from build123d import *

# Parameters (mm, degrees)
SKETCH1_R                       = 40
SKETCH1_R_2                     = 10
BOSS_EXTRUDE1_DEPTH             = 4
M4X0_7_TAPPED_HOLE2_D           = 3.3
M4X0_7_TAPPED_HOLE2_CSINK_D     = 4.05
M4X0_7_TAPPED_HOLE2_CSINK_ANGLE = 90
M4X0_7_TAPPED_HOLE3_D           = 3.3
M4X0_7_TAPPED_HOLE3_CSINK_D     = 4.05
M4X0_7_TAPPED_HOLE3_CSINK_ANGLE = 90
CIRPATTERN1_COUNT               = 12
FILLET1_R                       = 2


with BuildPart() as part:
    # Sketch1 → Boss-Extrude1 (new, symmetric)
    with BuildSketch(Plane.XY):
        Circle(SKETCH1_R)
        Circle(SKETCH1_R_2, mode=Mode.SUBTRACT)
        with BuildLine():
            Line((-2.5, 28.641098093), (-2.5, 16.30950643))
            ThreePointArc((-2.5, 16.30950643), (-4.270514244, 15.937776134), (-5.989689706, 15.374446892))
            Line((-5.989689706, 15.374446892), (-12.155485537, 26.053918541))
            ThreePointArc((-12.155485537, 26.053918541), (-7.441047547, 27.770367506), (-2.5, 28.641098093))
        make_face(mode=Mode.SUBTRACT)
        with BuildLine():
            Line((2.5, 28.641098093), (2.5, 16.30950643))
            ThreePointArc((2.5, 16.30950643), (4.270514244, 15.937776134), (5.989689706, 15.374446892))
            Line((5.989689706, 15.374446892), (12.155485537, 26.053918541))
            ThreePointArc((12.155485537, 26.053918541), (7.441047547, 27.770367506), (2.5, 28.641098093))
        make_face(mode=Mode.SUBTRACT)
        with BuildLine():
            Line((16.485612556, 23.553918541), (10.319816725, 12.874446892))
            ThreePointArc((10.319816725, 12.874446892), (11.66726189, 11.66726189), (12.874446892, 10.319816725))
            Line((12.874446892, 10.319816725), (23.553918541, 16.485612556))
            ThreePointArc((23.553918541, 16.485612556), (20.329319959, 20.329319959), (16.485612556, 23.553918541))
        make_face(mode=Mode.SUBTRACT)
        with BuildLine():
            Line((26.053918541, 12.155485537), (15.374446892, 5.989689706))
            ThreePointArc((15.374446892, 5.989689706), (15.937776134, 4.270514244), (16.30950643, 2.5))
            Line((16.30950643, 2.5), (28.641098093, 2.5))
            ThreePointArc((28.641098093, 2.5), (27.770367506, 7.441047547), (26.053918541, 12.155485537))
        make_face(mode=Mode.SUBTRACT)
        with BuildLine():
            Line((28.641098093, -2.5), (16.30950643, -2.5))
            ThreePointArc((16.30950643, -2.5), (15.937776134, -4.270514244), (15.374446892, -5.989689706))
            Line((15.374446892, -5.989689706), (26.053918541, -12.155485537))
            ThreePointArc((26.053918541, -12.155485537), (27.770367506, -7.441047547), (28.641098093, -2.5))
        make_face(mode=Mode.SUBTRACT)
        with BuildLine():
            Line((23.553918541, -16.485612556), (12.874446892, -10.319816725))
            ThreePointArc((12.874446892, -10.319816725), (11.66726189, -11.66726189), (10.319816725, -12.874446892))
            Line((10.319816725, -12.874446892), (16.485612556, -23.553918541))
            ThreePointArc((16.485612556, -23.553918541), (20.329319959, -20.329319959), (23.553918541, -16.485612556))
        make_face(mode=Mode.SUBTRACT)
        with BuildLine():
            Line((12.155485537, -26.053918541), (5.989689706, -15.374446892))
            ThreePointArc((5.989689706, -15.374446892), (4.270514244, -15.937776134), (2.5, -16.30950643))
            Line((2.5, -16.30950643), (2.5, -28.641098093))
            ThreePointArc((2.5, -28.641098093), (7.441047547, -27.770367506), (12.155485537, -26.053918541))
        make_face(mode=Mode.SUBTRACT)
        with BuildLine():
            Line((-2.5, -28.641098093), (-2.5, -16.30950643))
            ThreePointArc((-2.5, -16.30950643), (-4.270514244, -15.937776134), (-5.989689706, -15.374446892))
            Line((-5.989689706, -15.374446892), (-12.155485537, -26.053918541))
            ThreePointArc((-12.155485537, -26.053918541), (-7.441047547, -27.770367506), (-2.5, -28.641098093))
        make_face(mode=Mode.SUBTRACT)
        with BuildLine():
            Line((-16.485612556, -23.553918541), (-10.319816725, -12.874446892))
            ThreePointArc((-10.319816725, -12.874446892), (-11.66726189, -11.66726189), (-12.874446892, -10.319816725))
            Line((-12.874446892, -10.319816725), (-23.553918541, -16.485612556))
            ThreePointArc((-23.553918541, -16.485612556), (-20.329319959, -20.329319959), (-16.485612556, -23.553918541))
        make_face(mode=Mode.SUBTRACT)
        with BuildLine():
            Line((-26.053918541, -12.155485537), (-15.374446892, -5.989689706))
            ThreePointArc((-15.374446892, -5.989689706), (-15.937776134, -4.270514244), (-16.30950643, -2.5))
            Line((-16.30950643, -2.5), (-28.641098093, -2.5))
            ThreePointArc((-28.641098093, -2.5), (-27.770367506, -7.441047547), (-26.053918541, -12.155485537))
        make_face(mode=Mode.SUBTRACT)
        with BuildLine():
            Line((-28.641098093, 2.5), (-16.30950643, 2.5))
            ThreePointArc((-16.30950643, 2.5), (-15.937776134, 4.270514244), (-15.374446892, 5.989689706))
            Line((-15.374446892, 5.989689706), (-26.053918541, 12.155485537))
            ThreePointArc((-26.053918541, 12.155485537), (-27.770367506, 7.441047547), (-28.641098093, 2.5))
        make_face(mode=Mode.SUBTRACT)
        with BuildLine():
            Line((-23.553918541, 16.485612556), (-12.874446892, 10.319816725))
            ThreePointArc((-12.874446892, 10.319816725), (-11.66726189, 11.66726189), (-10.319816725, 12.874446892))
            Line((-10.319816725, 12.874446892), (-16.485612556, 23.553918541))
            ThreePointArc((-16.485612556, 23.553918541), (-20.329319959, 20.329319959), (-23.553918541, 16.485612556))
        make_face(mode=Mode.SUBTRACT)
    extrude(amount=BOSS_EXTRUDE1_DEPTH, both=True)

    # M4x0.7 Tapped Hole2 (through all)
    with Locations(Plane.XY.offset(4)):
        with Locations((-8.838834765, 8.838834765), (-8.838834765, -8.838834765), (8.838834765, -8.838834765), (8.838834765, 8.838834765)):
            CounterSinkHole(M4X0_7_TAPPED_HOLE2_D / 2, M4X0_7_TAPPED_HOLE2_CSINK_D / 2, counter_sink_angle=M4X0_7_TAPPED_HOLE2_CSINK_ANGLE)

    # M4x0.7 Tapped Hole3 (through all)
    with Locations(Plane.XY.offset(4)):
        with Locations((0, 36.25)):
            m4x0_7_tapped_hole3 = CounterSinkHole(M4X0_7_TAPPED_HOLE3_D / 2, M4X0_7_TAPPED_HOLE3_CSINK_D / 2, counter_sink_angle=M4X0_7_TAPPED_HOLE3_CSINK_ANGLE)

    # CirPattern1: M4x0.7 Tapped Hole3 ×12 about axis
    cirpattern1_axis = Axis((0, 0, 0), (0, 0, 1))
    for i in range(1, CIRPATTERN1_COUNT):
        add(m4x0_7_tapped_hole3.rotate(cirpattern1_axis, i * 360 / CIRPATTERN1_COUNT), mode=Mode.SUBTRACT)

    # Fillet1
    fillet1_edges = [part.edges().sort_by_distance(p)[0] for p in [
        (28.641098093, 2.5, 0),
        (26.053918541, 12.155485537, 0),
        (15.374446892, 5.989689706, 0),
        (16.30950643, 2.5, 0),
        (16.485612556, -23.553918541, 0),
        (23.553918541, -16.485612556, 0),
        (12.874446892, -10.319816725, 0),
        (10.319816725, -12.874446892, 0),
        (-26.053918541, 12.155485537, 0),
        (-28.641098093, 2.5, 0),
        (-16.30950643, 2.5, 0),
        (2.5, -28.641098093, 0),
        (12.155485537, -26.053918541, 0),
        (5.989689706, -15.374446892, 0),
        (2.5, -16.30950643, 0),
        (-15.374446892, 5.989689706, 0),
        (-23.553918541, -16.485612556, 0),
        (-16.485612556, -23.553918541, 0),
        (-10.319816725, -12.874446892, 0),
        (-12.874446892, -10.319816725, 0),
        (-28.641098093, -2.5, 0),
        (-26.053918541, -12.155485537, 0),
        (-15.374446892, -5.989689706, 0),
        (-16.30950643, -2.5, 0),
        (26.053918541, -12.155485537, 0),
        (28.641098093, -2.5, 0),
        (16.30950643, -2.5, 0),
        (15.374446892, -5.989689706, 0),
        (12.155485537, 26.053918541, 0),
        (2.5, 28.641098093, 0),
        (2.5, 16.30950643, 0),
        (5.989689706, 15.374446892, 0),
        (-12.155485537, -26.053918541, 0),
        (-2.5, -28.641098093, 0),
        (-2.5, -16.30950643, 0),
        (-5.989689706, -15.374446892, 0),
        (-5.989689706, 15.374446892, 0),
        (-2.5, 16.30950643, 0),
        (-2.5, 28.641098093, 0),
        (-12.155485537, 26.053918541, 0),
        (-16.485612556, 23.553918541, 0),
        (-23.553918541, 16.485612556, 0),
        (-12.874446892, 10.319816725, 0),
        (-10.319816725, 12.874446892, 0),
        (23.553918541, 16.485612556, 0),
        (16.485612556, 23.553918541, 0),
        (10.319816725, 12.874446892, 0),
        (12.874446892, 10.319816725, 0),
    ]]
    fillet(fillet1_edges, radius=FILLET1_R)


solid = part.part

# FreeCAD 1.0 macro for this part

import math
import FreeCAD as App
import Part
import Sketcher
from FreeCAD import Vector
Q = App.Units.Quantity


def edges_at(feature, points):
    """Names of the edges that pass closest to the given points."""
    edges = feature.Shape.Edges
    near = lambda p: min(range(len(edges)), key=lambda i: edges[i].distToShape(Part.Vertex(*p))[0])
    return sorted({f"Edge{near(p) + 1}" for p in points})

doc = App.newDocument("Part")
params = doc.addObject("Spreadsheet::Sheet", "Params")
for row, (alias, value) in enumerate([
    ("sketch1_diameter", "80 mm"),
    ("sketch1_diameter2", "20 mm"),
    ("sketch1_radius", "16.5 mm"),
    ("sketch1_radius2", "28.75 mm"),
    ("pad1_length", "8 mm"),
    ("sketch2_diameter", "3.3 mm"),
    ("hole_diameter", "3.3 mm"),
    ("hole_csink_diameter", "4.05 mm"),
    ("sketch3_diameter", "3.3 mm"),
    ("hole2_diameter", "3.3 mm"),
    ("hole2_csink_diameter", "4.05 mm"),
    ("fillet_radius", "2 mm"),
], start=1):
    params.set(f"A{row}", alias)
    params.set(f"B{row}", "=" + value)
    params.setAlias(f"B{row}", alias)

body = doc.addObject("PartDesign::Body", "Body")

# Sketch on XY plane
sketch1 = doc.addObject("Sketcher::SketchObject", "Sketch")
body.addObject(sketch1)
sketch1.AttachmentSupport = (doc.XY_Plane, [""])
sketch1.MapMode = "FlatFace"
sketch1.addGeometry([
    Part.Circle(Vector(0, 0, 0), Vector(0, 0, 1), 40),  # 0
    Part.LineSegment(Vector(-10.319817, -12.874447, 0), Vector(-16.485613, -23.553919, 0)),  # 1
    Part.ArcOfCircle(Part.Circle(Vector(0, 0, 0), Vector(0, 0, 1), 28.75), math.radians(-145.011458), math.radians(-124.988542)),  # 2
    Part.LineSegment(Vector(-23.553919, -16.485613, 0), Vector(-12.874447, -10.319817, 0)),  # 3
    Part.ArcOfCircle(Part.Circle(Vector(0, 0, 0), Vector(0, 0, 1), 16.5), math.radians(-141.285258), math.radians(-128.714742)),  # 4
    Part.LineSegment(Vector(-2.5, -16.309506, 0), Vector(-2.5, -28.641098, 0)),  # 5
    Part.ArcOfCircle(Part.Circle(Vector(0, 0, 0), Vector(0, 0, 1), 28.75), math.radians(-115.011458), math.radians(-94.988542)),  # 6
    Part.LineSegment(Vector(-12.155486, -26.053919, 0), Vector(-5.98969, -15.374447, 0)),  # 7
    Part.ArcOfCircle(Part.Circle(Vector(0, 0, 0), Vector(0, 0, 1), 16.5), math.radians(-111.285258), math.radians(-98.714742)),  # 8
    Part.LineSegment(Vector(-15.374447, -5.98969, 0), Vector(-26.053919, -12.155486, 0)),  # 9
    Part.ArcOfCircle(Part.Circle(Vector(0, 0, 0), Vector(0, 0, 1), 28.75), math.radians(-175.011458), math.radians(-154.988542)),  # 10
    Part.LineSegment(Vector(-28.641098, -2.5, 0), Vector(-16.309506, -2.5, 0)),  # 11
    Part.ArcOfCircle(Part.Circle(Vector(0, 0, 0), Vector(0, 0, 1), 16.5), math.radians(-171.285258), math.radians(-158.714742)),  # 12
    Part.LineSegment(Vector(5.98969, -15.374447, 0), Vector(12.155486, -26.053919, 0)),  # 13
    Part.ArcOfCircle(Part.Circle(Vector(0, 0, 0), Vector(0, 0, 1), 28.75), math.radians(-85.011458), math.radians(-64.988542)),  # 14
    Part.LineSegment(Vector(2.5, -28.641098, 0), Vector(2.5, -16.309506, 0)),  # 15
    Part.ArcOfCircle(Part.Circle(Vector(0, 0, 0), Vector(0, 0, 1), 16.5), math.radians(-81.285258), math.radians(-68.714742)),  # 16
    Part.LineSegment(Vector(12.874447, -10.319817, 0), Vector(23.553919, -16.485613, 0)),  # 17
    Part.ArcOfCircle(Part.Circle(Vector(0, 0, 0), Vector(0, 0, 1), 28.75), math.radians(-55.011458), math.radians(-34.988542)),  # 18
    Part.LineSegment(Vector(16.485613, -23.553919, 0), Vector(10.319817, -12.874447, 0)),  # 19
    Part.ArcOfCircle(Part.Circle(Vector(0, 0, 0), Vector(0, 0, 1), 16.5), math.radians(-51.285258), math.radians(-38.714742)),  # 20
    Part.LineSegment(Vector(16.309506, -2.5, 0), Vector(28.641098, -2.5, 0)),  # 21
    Part.ArcOfCircle(Part.Circle(Vector(0, 0, 0), Vector(0, 0, 1), 28.75), math.radians(-25.011458), math.radians(-4.988542)),  # 22
    Part.LineSegment(Vector(26.053919, -12.155486, 0), Vector(15.374447, -5.98969, 0)),  # 23
    Part.ArcOfCircle(Part.Circle(Vector(0, 0, 0), Vector(0, 0, 1), 16.5), math.radians(-21.285258), math.radians(-8.714742)),  # 24
    Part.LineSegment(Vector(-16.309506, 2.5, 0), Vector(-28.641098, 2.5, 0)),  # 25
    Part.ArcOfCircle(Part.Circle(Vector(0, 0, 0), Vector(0, 0, 1), 28.75), math.radians(154.988542), math.radians(175.011458)),  # 26
    Part.LineSegment(Vector(-26.053919, 12.155486, 0), Vector(-15.374447, 5.98969, 0)),  # 27
    Part.ArcOfCircle(Part.Circle(Vector(0, 0, 0), Vector(0, 0, 1), 16.5), math.radians(158.714742), math.radians(171.285258)),  # 28
    Part.LineSegment(Vector(-12.874447, 10.319817, 0), Vector(-23.553919, 16.485613, 0)),  # 29
    Part.ArcOfCircle(Part.Circle(Vector(0, 0, 0), Vector(0, 0, 1), 28.75), math.radians(124.988542), math.radians(145.011458)),  # 30
    Part.LineSegment(Vector(-16.485613, 23.553919, 0), Vector(-10.319817, 12.874447, 0)),  # 31
    Part.ArcOfCircle(Part.Circle(Vector(0, 0, 0), Vector(0, 0, 1), 16.5), math.radians(128.714742), math.radians(141.285258)),  # 32
    Part.ArcOfCircle(Part.Circle(Vector(0, 0, 0), Vector(0, 0, 1), 28.75), math.radians(94.988542), math.radians(115.011458)),  # 33
    Part.LineSegment(Vector(-2.5, 28.641098, 0), Vector(-2.5, 16.309506, 0)),  # 34
    Part.ArcOfCircle(Part.Circle(Vector(0, 0, 0), Vector(0, 0, 1), 16.5), math.radians(98.714742), math.radians(111.285258)),  # 35
    Part.LineSegment(Vector(-5.98969, 15.374447, 0), Vector(-12.155486, 26.053919, 0)),  # 36
    Part.Circle(Vector(0, 0, 0), Vector(0, 0, 1), 10),  # 37
    Part.LineSegment(Vector(15.374447, 5.98969, 0), Vector(26.053919, 12.155486, 0)),  # 38
    Part.ArcOfCircle(Part.Circle(Vector(0, 0, 0), Vector(0, 0, 1), 28.75), math.radians(4.988542), math.radians(25.011458)),  # 39
    Part.LineSegment(Vector(28.641098, 2.5, 0), Vector(16.309506, 2.5, 0)),  # 40
    Part.ArcOfCircle(Part.Circle(Vector(0, 0, 0), Vector(0, 0, 1), 16.5), math.radians(8.714742), math.radians(21.285258)),  # 41
    Part.LineSegment(Vector(2.5, 16.309506, 0), Vector(2.5, 28.641098, 0)),  # 42
    Part.ArcOfCircle(Part.Circle(Vector(0, 0, 0), Vector(0, 0, 1), 28.75), math.radians(64.988542), math.radians(85.011458)),  # 43
    Part.LineSegment(Vector(12.155486, 26.053919, 0), Vector(5.98969, 15.374447, 0)),  # 44
    Part.ArcOfCircle(Part.Circle(Vector(0, 0, 0), Vector(0, 0, 1), 16.5), math.radians(68.714742), math.radians(81.285258)),  # 45
    Part.LineSegment(Vector(10.319817, 12.874447, 0), Vector(16.485613, 23.553919, 0)),  # 46
    Part.ArcOfCircle(Part.Circle(Vector(0, 0, 0), Vector(0, 0, 1), 28.75), math.radians(34.988542), math.radians(55.011458)),  # 47
    Part.LineSegment(Vector(23.553919, 16.485613, 0), Vector(12.874447, 10.319817, 0)),  # 48
    Part.ArcOfCircle(Part.Circle(Vector(0, 0, 0), Vector(0, 0, 1), 16.5), math.radians(38.714742), math.radians(51.285258)),  # 49
], False)
sketch1.addConstraint([
    Sketcher.Constraint("Coincident", 1, 2, 2, 2),
    Sketcher.Constraint("Coincident", 2, 1, 3, 1),
    Sketcher.Constraint("Coincident", 3, 2, 4, 1),
    Sketcher.Constraint("Coincident", 4, 2, 1, 1),
    Sketcher.Constraint("Coincident", 5, 2, 6, 2),
    Sketcher.Constraint("Coincident", 6, 1, 7, 1),
    Sketcher.Constraint("Coincident", 7, 2, 8, 1),
    Sketcher.Constraint("Coincident", 8, 2, 5, 1),
    Sketcher.Constraint("Coincident", 9, 2, 10, 2),
    Sketcher.Constraint("Coincident", 10, 1, 11, 1),
    Sketcher.Constraint("Coincident", 11, 2, 12, 1),
    Sketcher.Constraint("Coincident", 12, 2, 9, 1),
    Sketcher.Constraint("Coincident", 13, 2, 14, 2),
    Sketcher.Constraint("Coincident", 14, 1, 15, 1),
    Sketcher.Constraint("Coincident", 15, 2, 16, 1),
    Sketcher.Constraint("Coincident", 16, 2, 13, 1),
    Sketcher.Constraint("Coincident", 17, 2, 18, 2),
    Sketcher.Constraint("Coincident", 18, 1, 19, 1),
    Sketcher.Constraint("Coincident", 19, 2, 20, 1),
    Sketcher.Constraint("Coincident", 20, 2, 17, 1),
    Sketcher.Constraint("Coincident", 21, 2, 22, 2),
    Sketcher.Constraint("Coincident", 22, 1, 23, 1),
    Sketcher.Constraint("Coincident", 23, 2, 24, 1),
    Sketcher.Constraint("Coincident", 24, 2, 21, 1),
    Sketcher.Constraint("Coincident", 25, 2, 26, 2),
    Sketcher.Constraint("Coincident", 26, 1, 27, 1),
    Sketcher.Constraint("Coincident", 27, 2, 28, 1),
    Sketcher.Constraint("Coincident", 28, 2, 25, 1),
    Sketcher.Constraint("Coincident", 29, 2, 30, 2),
    Sketcher.Constraint("Coincident", 30, 1, 31, 1),
    Sketcher.Constraint("Coincident", 31, 2, 32, 1),
    Sketcher.Constraint("Coincident", 32, 2, 29, 1),
    Sketcher.Constraint("Coincident", 33, 1, 34, 1),
    Sketcher.Constraint("Coincident", 34, 2, 35, 1),
    Sketcher.Constraint("Coincident", 35, 2, 36, 1),
    Sketcher.Constraint("Coincident", 36, 2, 33, 2),
    Sketcher.Constraint("Coincident", 38, 2, 39, 2),
    Sketcher.Constraint("Coincident", 39, 1, 40, 1),
    Sketcher.Constraint("Coincident", 40, 2, 41, 1),
    Sketcher.Constraint("Coincident", 41, 2, 38, 1),
    Sketcher.Constraint("Coincident", 42, 2, 43, 2),
    Sketcher.Constraint("Coincident", 43, 1, 44, 1),
    Sketcher.Constraint("Coincident", 44, 2, 45, 1),
    Sketcher.Constraint("Coincident", 45, 2, 42, 1),
    Sketcher.Constraint("Coincident", 46, 2, 47, 2),
    Sketcher.Constraint("Coincident", 47, 1, 48, 1),
    Sketcher.Constraint("Coincident", 48, 2, 49, 1),
    Sketcher.Constraint("Coincident", 49, 2, 46, 1),
    Sketcher.Constraint("Vertical", 5),
    Sketcher.Constraint("Horizontal", 11),
    Sketcher.Constraint("Vertical", 15),
    Sketcher.Constraint("Horizontal", 21),
    Sketcher.Constraint("Horizontal", 25),
    Sketcher.Constraint("Vertical", 34),
    Sketcher.Constraint("Horizontal", 40),
    Sketcher.Constraint("Vertical", 42),
    Sketcher.Constraint("Coincident", 0, 3, -1, 1),
    Sketcher.Constraint("Coincident", 2, 3, -1, 1),
    Sketcher.Constraint("Coincident", 4, 3, -1, 1),
    Sketcher.Constraint("Coincident", 6, 3, -1, 1),
    Sketcher.Constraint("Coincident", 8, 3, -1, 1),
    Sketcher.Constraint("Coincident", 10, 3, -1, 1),
    Sketcher.Constraint("Coincident", 12, 3, -1, 1),
    Sketcher.Constraint("Coincident", 14, 3, -1, 1),
    Sketcher.Constraint("Coincident", 16, 3, -1, 1),
    Sketcher.Constraint("Coincident", 18, 3, -1, 1),
    Sketcher.Constraint("Coincident", 20, 3, -1, 1),
    Sketcher.Constraint("Coincident", 22, 3, -1, 1),
    Sketcher.Constraint("Coincident", 24, 3, -1, 1),
    Sketcher.Constraint("Coincident", 26, 3, -1, 1),
    Sketcher.Constraint("Coincident", 28, 3, -1, 1),
    Sketcher.Constraint("Coincident", 30, 3, -1, 1),
    Sketcher.Constraint("Coincident", 32, 3, -1, 1),
    Sketcher.Constraint("Coincident", 33, 3, -1, 1),
    Sketcher.Constraint("Coincident", 35, 3, -1, 1),
    Sketcher.Constraint("Coincident", 37, 3, -1, 1),
    Sketcher.Constraint("Coincident", 39, 3, -1, 1),
    Sketcher.Constraint("Coincident", 41, 3, -1, 1),
    Sketcher.Constraint("Coincident", 43, 3, -1, 1),
    Sketcher.Constraint("Coincident", 45, 3, -1, 1),
    Sketcher.Constraint("Coincident", 47, 3, -1, 1),
    Sketcher.Constraint("Coincident", 49, 3, -1, 1),
    Sketcher.Constraint("Equal", 2, 6),
    Sketcher.Constraint("Equal", 4, 8),
    Sketcher.Constraint("Equal", 6, 10),
    Sketcher.Constraint("Equal", 8, 12),
    Sketcher.Constraint("Equal", 10, 14),
    Sketcher.Constraint("Equal", 12, 16),
    Sketcher.Constraint("Equal", 14, 18),
    Sketcher.Constraint("Equal", 16, 20),
    Sketcher.Constraint("Equal", 18, 22),
    Sketcher.Constraint("Equal", 20, 24),
    Sketcher.Constraint("Equal", 22, 26),
    Sketcher.Constraint("Equal", 24, 28),
    Sketcher.Constraint("Equal", 26, 30),
    Sketcher.Constraint("Equal", 28, 32),
    Sketcher.Constraint("Equal", 30, 33),
    Sketcher.Constraint("Equal", 32, 35),
    Sketcher.Constraint("Equal", 33, 39),
    Sketcher.Constraint("Equal", 35, 41),
    Sketcher.Constraint("Equal", 39, 43),
    Sketcher.Constraint("Equal", 41, 45),
    Sketcher.Constraint("Equal", 43, 47),
    Sketcher.Constraint("Equal", 45, 49),
    Sketcher.Constraint("Parallel", 1, 7),
    Sketcher.Constraint("Parallel", 3, 9),
    Sketcher.Constraint("Perpendicular", 9, 13),
    Sketcher.Constraint("Perpendicular", 7, 17),
    Sketcher.Constraint("Parallel", 13, 19),
    Sketcher.Constraint("Parallel", 17, 23),
    Sketcher.Constraint("Parallel", 23, 27),
    Sketcher.Constraint("Parallel", 27, 29),
    Sketcher.Constraint("Parallel", 19, 31),
    Sketcher.Constraint("Parallel", 31, 36),
    Sketcher.Constraint("Perpendicular", 36, 38),
    Sketcher.Constraint("Perpendicular", 29, 44),
    Sketcher.Constraint("Parallel", 44, 46),
    Sketcher.Constraint("Parallel", 38, 48),
    Sketcher.Constraint("Horizontal", 6, 1, 13, 2),
    Sketcher.Constraint("Horizontal", 5, 2, 14, 1),
    Sketcher.Constraint("Horizontal", 7, 2, 16, 2),
    Sketcher.Constraint("Horizontal", 2, 1, 17, 2),
    Sketcher.Constraint("Horizontal", 1, 2, 18, 1),
    Sketcher.Constraint("Horizontal", 11, 2, 21, 2),
    Sketcher.Constraint("Horizontal", 9, 2, 22, 1),
    Sketcher.Constraint("Horizontal", 26, 1, 38, 2),
    Sketcher.Constraint("Horizontal", 28, 2, 39, 1),
    Sketcher.Constraint("Horizontal", 33, 1, 42, 2),
    Sketcher.Constraint("Horizontal", 36, 2, 43, 1),
    Sketcher.Constraint("Horizontal", 30, 1, 46, 2),
    Sketcher.Constraint("Horizontal", 29, 2, 47, 1),
    Sketcher.Constraint("Vertical", 10, 1, 25, 2),
    Sketcher.Constraint("Vertical", 9, 2, 26, 1),
    Sketcher.Constraint("Vertical", 2, 1, 29, 2),
    Sketcher.Constraint("Vertical", 1, 2, 30, 1),
    Sketcher.Constraint("Vertical", 8, 2, 33, 1),
    Sketcher.Constraint("Vertical", 7, 2, 35, 2),
    Sketcher.Constraint("Equal", 40, 5),
    Sketcher.Constraint("Equal", 1, 3),
    Sketcher.Constraint("Equal", 3, 7),
    Sketcher.Constraint("Equal", 7, 9),
    Sketcher.Constraint("Diameter", 0, 80.0),
    Sketcher.Constraint("Diameter", 37, 20.0),
    Sketcher.Constraint("Radius", 4, 16.5),
    Sketcher.Constraint("Angle", 1, Q("-120 deg")),
    Sketcher.Constraint("Radius", 2, 28.75),
    Sketcher.Constraint("DistanceX", 5, 2, -1, 1, 2.5),
    Sketcher.Constraint("Distance", 1, 12.331592),
])
sketch1.setExpression("Constraints[141]", "Params.sketch1_diameter")
sketch1.setExpression("Constraints[142]", "Params.sketch1_diameter2")
sketch1.setExpression("Constraints[143]", "Params.sketch1_radius")
sketch1.setExpression("Constraints[145]", "Params.sketch1_radius2")
pad1 = doc.addObject("PartDesign::Pad", "Pad")
body.addObject(pad1)
pad1.Profile = sketch1
pad1.setExpression("Length", "Params.pad1_length")
pad1.Midplane = True

# Sketch on XY plane
sketch2 = doc.addObject("Sketcher::SketchObject", "Sketch001")
body.addObject(sketch2)
sketch2.AttachmentSupport = (doc.XY_Plane, [""])
sketch2.MapMode = "FlatFace"
sketch2.AttachmentOffset = App.Placement(Vector(0, 0, 4), App.Rotation())
sketch2.addGeometry([
    Part.Circle(Vector(-8.838835, 8.838835, 0), Vector(0, 0, 1), 1.65),
    Part.Circle(Vector(-8.838835, -8.838835, 0), Vector(0, 0, 1), 1.65),
    Part.Circle(Vector(8.838835, -8.838835, 0), Vector(0, 0, 1), 1.65),
    Part.Circle(Vector(8.838835, 8.838835, 0), Vector(0, 0, 1), 1.65),
], False)
sketch2.addConstraint([
    Sketcher.Constraint("Equal", 0, 1),
    Sketcher.Constraint("Equal", 1, 2),
    Sketcher.Constraint("Equal", 2, 3),
    Sketcher.Constraint("Symmetric", 0, 3, 2, 3, -1, 1),
    Sketcher.Constraint("Symmetric", 1, 3, 3, 3, -1, 1),
    Sketcher.Constraint("Symmetric", 1, 3, 2, 3, -2),
    Sketcher.Constraint("Diameter", 0, 3.3),
    Sketcher.Constraint("DistanceY", 1, 3, 0, 3, 17.67767),
    Sketcher.Constraint("DistanceX", 1, 3, 2, 3, 17.67767),
])
sketch2.setExpression("Constraints[6]", "Params.sketch2_diameter")
doc.recompute()
hole = doc.addObject("PartDesign::Hole", "Hole")
body.addObject(hole)
hole.Profile = sketch2
hole.ThreadType = "None"
hole.setExpression("Diameter", "Params.hole_diameter")
hole.DepthType = "ThroughAll"
hole.HoleCutType = "Countersink"
hole.setExpression("HoleCutDiameter", "Params.hole_csink_diameter")
hole.HoleCutCountersinkAngle = 90

# Sketch on XY plane
sketch3 = doc.addObject("Sketcher::SketchObject", "Sketch002")
body.addObject(sketch3)
sketch3.AttachmentSupport = (doc.XY_Plane, [""])
sketch3.MapMode = "FlatFace"
sketch3.AttachmentOffset = App.Placement(Vector(0, 0, 4), App.Rotation())
sketch3.addGeometry(Part.Circle(Vector(0, 36.25, 0), Vector(0, 0, 1), 1.65), False)
sketch3.addConstraint([
    Sketcher.Constraint("PointOnObject", 0, 3, -2),
    Sketcher.Constraint("Diameter", 0, 3.3),
    Sketcher.Constraint("DistanceY", -1, 1, 0, 3, 36.25),
])
sketch3.setExpression("Constraints[1]", "Params.sketch3_diameter")
doc.recompute()
hole2 = doc.addObject("PartDesign::Hole", "Hole001")
body.addObject(hole2)
hole2.Profile = sketch3
hole2.ThreadType = "None"
hole2.setExpression("Diameter", "Params.hole2_diameter")
hole2.DepthType = "ThroughAll"
hole2.HoleCutType = "Countersink"
hole2.setExpression("HoleCutDiameter", "Params.hole2_csink_diameter")
hole2.HoleCutCountersinkAngle = 90
doc.recompute()

polarpattern = doc.addObject("PartDesign::PolarPattern", "PolarPattern")
body.addObject(polarpattern)
polarpattern.Originals = [hole2]
polarpattern.Axis = (doc.Z_Axis, [""])
polarpattern.Angle = 360
polarpattern.Occurrences = 12
body.Tip = polarpattern
doc.recompute()

fillet = doc.addObject("PartDesign::Fillet", "Fillet")
body.addObject(fillet)
fillet.Base = (polarpattern, edges_at(polarpattern, [
    (28.641, 2.5, 0),
    (26.054, 12.155, 0),
    (15.374, 5.99, 0),
    (16.31, 2.5, 0),
    (16.486, -23.554, 0),
    (23.554, -16.486, 0),
    (12.874, -10.32, 0),
    (10.32, -12.874, 0),
    (-26.054, 12.155, 0),
    (-28.641, 2.5, 0),
    (-16.31, 2.5, 0),
    (2.5, -28.641, 0),
    (12.155, -26.054, 0),
    (5.99, -15.374, 0),
    (2.5, -16.31, 0),
    (-15.374, 5.99, 0),
    (-23.554, -16.486, 0),
    (-16.486, -23.554, 0),
    (-10.32, -12.874, 0),
    (-12.874, -10.32, 0),
    (-28.641, -2.5, 0),
    (-26.054, -12.155, 0),
    (-15.374, -5.99, 0),
    (-16.31, -2.5, 0),
    (26.054, -12.155, 0),
    (28.641, -2.5, 0),
    (16.31, -2.5, 0),
    (15.374, -5.99, 0),
    (12.155, 26.054, 0),
    (2.5, 28.641, 0),
    (2.5, 16.31, 0),
    (5.99, 15.374, 0),
    (-12.155, -26.054, 0),
    (-2.5, -28.641, 0),
    (-2.5, -16.31, 0),
    (-5.99, -15.374, 0),
    (-5.99, 15.374, 0),
    (-2.5, 16.31, 0),
    (-2.5, 28.641, 0),
    (-12.155, 26.054, 0),
    (-16.486, 23.554, 0),
    (-23.554, 16.486, 0),
    (-12.874, 10.32, 0),
    (-10.32, 12.874, 0),
    (23.554, 16.486, 0),
    (16.486, 23.554, 0),
    (10.32, 12.874, 0),
    (12.874, 10.32, 0),
]))
fillet.setExpression("Radius", "Params.fillet_radius")

doc.recompute()
